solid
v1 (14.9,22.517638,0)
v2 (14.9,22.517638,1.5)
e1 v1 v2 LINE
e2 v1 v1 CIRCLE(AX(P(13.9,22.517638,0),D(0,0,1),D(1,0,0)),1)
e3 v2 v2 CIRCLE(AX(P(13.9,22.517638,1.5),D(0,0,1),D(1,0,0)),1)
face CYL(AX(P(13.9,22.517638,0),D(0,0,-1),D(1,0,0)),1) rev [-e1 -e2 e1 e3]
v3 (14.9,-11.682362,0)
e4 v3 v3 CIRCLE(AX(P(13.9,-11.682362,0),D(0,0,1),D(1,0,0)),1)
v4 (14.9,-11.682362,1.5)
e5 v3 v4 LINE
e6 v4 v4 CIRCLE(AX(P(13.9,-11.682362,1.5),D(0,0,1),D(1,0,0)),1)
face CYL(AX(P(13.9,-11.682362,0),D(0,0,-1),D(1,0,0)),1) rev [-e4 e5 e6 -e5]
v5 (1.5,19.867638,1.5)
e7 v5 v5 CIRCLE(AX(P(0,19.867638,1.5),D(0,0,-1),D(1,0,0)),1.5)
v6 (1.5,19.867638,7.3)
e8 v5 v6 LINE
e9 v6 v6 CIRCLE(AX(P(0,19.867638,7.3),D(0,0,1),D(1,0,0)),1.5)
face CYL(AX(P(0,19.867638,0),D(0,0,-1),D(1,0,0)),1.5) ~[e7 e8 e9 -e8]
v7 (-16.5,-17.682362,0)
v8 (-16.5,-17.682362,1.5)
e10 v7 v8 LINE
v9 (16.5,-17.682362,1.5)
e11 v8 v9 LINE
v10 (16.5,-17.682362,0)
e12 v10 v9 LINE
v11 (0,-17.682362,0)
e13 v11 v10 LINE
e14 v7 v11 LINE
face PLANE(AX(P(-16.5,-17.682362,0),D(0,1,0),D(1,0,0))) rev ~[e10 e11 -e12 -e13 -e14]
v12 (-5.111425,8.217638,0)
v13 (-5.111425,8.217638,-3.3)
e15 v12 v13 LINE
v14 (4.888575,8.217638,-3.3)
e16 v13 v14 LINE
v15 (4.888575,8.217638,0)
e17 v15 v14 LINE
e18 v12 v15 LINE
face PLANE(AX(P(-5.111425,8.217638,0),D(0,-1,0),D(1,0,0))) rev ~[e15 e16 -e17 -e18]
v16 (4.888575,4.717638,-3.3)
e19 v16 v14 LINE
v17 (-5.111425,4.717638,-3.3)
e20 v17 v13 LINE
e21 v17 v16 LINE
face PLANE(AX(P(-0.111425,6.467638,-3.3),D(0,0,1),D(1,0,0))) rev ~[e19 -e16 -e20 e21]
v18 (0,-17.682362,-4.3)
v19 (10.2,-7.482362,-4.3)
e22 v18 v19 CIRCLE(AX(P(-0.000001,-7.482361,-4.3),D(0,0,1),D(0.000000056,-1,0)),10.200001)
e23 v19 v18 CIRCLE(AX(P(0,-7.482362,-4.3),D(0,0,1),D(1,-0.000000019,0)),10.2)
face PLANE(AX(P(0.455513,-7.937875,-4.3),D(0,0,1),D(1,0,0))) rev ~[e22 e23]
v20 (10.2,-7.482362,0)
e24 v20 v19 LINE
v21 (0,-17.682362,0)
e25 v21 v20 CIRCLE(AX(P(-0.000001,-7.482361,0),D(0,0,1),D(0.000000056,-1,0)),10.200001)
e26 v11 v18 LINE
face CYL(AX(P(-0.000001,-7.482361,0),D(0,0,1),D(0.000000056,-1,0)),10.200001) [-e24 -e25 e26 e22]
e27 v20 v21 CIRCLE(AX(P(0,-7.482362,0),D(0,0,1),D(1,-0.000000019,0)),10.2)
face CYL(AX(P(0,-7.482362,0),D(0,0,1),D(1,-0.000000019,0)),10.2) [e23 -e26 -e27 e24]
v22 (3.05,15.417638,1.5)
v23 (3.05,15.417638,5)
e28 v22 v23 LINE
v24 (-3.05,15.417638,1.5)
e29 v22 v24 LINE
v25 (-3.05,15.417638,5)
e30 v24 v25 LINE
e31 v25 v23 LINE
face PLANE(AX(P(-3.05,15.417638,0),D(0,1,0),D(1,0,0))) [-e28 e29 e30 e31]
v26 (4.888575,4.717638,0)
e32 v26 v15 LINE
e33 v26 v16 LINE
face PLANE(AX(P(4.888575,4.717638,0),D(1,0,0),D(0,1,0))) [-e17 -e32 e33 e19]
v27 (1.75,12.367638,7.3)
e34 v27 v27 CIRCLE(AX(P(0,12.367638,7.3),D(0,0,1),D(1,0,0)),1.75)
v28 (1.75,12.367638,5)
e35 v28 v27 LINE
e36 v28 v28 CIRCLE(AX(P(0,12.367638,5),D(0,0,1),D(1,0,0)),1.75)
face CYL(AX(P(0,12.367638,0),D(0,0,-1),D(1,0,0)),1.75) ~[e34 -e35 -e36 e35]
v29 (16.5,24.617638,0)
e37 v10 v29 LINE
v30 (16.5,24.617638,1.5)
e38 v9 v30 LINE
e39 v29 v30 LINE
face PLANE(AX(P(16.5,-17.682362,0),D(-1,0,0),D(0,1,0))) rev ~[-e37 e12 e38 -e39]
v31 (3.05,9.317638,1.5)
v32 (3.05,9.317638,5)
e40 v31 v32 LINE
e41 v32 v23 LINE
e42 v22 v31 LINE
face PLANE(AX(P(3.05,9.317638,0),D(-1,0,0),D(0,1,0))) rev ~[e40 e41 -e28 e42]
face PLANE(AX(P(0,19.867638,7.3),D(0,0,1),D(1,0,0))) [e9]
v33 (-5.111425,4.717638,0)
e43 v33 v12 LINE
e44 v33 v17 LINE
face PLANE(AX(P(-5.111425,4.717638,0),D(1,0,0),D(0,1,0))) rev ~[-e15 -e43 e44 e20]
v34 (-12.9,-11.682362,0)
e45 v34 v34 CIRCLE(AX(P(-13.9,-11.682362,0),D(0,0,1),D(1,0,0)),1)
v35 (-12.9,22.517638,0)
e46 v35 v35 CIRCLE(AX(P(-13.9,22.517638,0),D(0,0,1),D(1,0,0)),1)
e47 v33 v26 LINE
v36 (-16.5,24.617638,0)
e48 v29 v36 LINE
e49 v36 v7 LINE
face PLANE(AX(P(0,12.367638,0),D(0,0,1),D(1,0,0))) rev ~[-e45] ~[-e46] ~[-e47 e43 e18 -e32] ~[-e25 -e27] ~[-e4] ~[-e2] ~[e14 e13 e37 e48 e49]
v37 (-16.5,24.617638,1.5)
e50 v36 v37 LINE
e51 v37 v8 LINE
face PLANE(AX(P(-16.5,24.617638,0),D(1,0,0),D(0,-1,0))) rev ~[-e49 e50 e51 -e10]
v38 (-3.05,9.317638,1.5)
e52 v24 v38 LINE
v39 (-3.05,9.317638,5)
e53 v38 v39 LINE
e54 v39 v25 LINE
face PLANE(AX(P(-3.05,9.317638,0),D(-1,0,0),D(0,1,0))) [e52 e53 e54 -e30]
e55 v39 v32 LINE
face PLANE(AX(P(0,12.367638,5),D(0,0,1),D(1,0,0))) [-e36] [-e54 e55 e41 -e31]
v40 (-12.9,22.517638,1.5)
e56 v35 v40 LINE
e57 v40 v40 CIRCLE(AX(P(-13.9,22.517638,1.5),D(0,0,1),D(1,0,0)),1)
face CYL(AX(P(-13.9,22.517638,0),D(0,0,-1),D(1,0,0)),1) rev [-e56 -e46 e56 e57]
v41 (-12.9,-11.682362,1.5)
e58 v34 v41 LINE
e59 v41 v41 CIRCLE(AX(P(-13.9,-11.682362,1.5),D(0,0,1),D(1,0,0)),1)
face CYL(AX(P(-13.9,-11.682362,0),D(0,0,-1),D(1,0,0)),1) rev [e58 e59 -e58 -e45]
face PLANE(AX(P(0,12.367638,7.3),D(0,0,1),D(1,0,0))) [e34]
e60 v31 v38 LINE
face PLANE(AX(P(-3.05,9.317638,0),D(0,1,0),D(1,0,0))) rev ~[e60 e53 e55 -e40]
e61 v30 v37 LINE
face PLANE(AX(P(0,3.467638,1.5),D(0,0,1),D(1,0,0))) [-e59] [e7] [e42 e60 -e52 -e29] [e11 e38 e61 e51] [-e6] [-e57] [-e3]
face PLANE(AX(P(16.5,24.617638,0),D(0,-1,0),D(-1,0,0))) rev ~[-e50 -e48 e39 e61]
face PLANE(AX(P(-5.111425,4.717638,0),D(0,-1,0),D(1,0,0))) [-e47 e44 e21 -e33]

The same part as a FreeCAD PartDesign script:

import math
import FreeCAD as App
import Part
import Sketcher
from FreeCAD import Vector
Q = App.Units.Quantity


def add_polygon(sketch, points):
    """Adds a closed chain of lines whose ends are joined by coincident constraints."""
    first, n = sketch.GeometryCount, len(points)
    for a, b in zip(points, points[1:] + points[:1]):
        sketch.addGeometry(Part.LineSegment(App.Vector(*a, 0), App.Vector(*b, 0)), False)
    for i in range(n):
        sketch.addConstraint(Sketcher.Constraint("Coincident", first + i, 2, first + (i + 1) % n, 1))

doc = App.newDocument("Part")
body = doc.addObject("PartDesign::Body", "Body")

# Sketch on XY plane
sketch1 = doc.addObject("Sketcher::SketchObject", "Sketch")
body.addObject(sketch1)
sketch1.AttachmentSupport = (doc.XY_Plane, [""])
sketch1.MapMode = "FlatFace"
add_polygon(sketch1, [(-16.5, -17.7), (16.5, -17.7), (16.5, 24.6), (-16.5, 24.6)])  # lines 0-3
sketch1.addGeometry(Part.Circle(Vector(-13.9, -11.7, 0), Vector(0, 0, 1), 1), False)  # 4
sketch1.addGeometry(Part.Circle(Vector(13.9, -11.7, 0), Vector(0, 0, 1), 1), False)  # 5
sketch1.addGeometry(Part.Circle(Vector(-13.9, 22.5, 0), Vector(0, 0, 1), 1), False)  # 6
sketch1.addGeometry(Part.Circle(Vector(13.9, 22.5, 0), Vector(0, 0, 1), 1), False)  # 7
sketch1.addConstraint([
    Sketcher.Constraint("Horizontal", 0),
    Sketcher.Constraint("Vertical", 1),
    Sketcher.Constraint("Horizontal", 2),
    Sketcher.Constraint("Vertical", 3),
    Sketcher.Constraint("Equal", 4, 5),
    Sketcher.Constraint("Equal", 5, 6),
    Sketcher.Constraint("Equal", 6, 7),
    Sketcher.Constraint("Symmetric", 4, 3, 5, 3, -2),
    Sketcher.Constraint("Symmetric", 6, 3, 7, 3, -2),
    Sketcher.Constraint("Vertical", 4, 3, 6, 3),
    Sketcher.Constraint("Diameter", 4, Q("2 mm")),
    Sketcher.Constraint("DistanceX", 0, 1, 0, 2, Q("33 mm")),
    Sketcher.Constraint("DistanceY", 1, 1, 1, 2, Q("42.3 mm")),
    Sketcher.Constraint("DistanceY", 0, 2, 5, 3, Q("6 mm")),
    Sketcher.Constraint("DistanceX", 4, 3, -1, 1, Q("13.9 mm")),
    Sketcher.Constraint("DistanceX", -1, 1, 0, 2, Q("16.5 mm")),
    Sketcher.Constraint("DistanceY", 4, 3, 6, 3, Q("34.2 mm")),
    Sketcher.Constraint("DistanceY", -1, 1, 6, 3, Q("22.517638 mm")),
])
pad1 = doc.addObject("PartDesign::Pad", "Pad")
body.addObject(pad1)
pad1.Profile = sketch1
pad1.Length = 1.5

# Sketch on XY plane
sketch2 = doc.addObject("Sketcher::SketchObject", "Sketch001")
body.addObject(sketch2)
sketch2.AttachmentSupport = (doc.XY_Plane, [""])
sketch2.MapMode = "FlatFace"
sketch2.addGeometry([
    Part.ArcOfCircle(Part.Circle(Vector(0, -7, 0), Vector(0, 0, 1), 10), math.radians(0), math.radians(270)),
    Part.ArcOfCircle(Part.Circle(Vector(0, -7, 0), Vector(0, 0, 1), 10), math.radians(-90), math.radians(0)),
], False)
sketch2.addConstraint([
    Sketcher.Constraint("Tangent", 0, 1, 1, 2),
    Sketcher.Constraint("Coincident", 1, 1, 0, 2),
    Sketcher.Constraint("PointOnObject", 0, 3, -2),
    Sketcher.Constraint("PointOnObject", 1, 1, -2),
    Sketcher.Constraint("Horizontal", 1, 3, 0, 1),
    Sketcher.Constraint("Radius", 0, Q("10.2 mm")),
    Sketcher.Constraint("DistanceY", 0, 3, -1, 1, Q("7.482362 mm")),
])
pad2 = doc.addObject("PartDesign::Pad", "Pad001")
body.addObject(pad2)
pad2.Profile = sketch2
pad2.Length = 4.3
pad2.Reversed = True

# Sketch on XY plane
sketch3 = doc.addObject("Sketcher::SketchObject", "Sketch002")
body.addObject(sketch3)
sketch3.AttachmentSupport = (doc.XY_Plane, [""])
sketch3.MapMode = "FlatFace"
sketch3.addGeometry([
    Part.Circle(Vector(0, 19.9, 0), Vector(0, 0, 1), 1.5),
    Part.Circle(Vector(0, 12.4, 0), Vector(0, 0, 1), 1.8),
], False)
sketch3.addConstraint([
    Sketcher.Constraint("PointOnObject", 0, 3, -2),
    Sketcher.Constraint("PointOnObject", 1, 3, -2),
    Sketcher.Constraint("Diameter", 0, Q("3 mm")),
    Sketcher.Constraint("Diameter", 1, Q("3.5 mm")),
    Sketcher.Constraint("DistanceY", 1, 3, 0, 3, Q("7.5 mm")),
    Sketcher.Constraint("DistanceY", -1, 1, 0, 3, Q("19.867638 mm")),
])
pad3 = doc.addObject("PartDesign::Pad", "Pad002")
body.addObject(pad3)
pad3.Profile = sketch3
pad3.Length = 7.3

# Sketch on XY plane
sketch4 = doc.addObject("Sketcher::SketchObject", "Sketch003")
body.addObject(sketch4)
sketch4.AttachmentSupport = (doc.XY_Plane, [""])
sketch4.MapMode = "FlatFace"
add_polygon(sketch4, [(-3, 15.4), (-3, 9.3), (3, 9.3), (3, 15.4)])  # lines 0-3
sketch4.addGeometry(Part.Circle(Vector(0, 12.4, 0), Vector(0, 0, 1), 1.8), False)  # 4
sketch4.addConstraint([
    Sketcher.Constraint("Vertical", 0),
    Sketcher.Constraint("Horizontal", 1),
    Sketcher.Constraint("Vertical", 2),
    Sketcher.Constraint("Horizontal", 3),
    Sketcher.Constraint("PointOnObject", 4, 3, -2),
    Sketcher.Constraint("Equal", 3, 0),
    Sketcher.Constraint("Diameter", 4, Q("3.5 mm")),
    Sketcher.Constraint("DistanceX", 1, 1, 1, 2, Q("6.1 mm")),
    Sketcher.Constraint("DistanceX", 0, 2, -1, 1, Q("3.05 mm")),
    Sketcher.Constraint("DistanceY", 0, 2, 4, 3, Q("3.05 mm")),
    Sketcher.Constraint("DistanceY", -1, 1, 4, 3, Q("12.367638 mm")),
])
pad4 = doc.addObject("PartDesign::Pad", "Pad003")
body.addObject(pad4)
pad4.Profile = sketch4
pad4.Length = 5

# Sketch on XY plane
sketch5 = doc.addObject("Sketcher::SketchObject", "Sketch004")
body.addObject(sketch5)
sketch5.AttachmentSupport = (doc.XY_Plane, [""])
sketch5.MapMode = "FlatFace"
add_polygon(sketch5, [(-5.1, 8.2), (-5.1, 4.7), (4.9, 4.7), (4.9, 8.2)])  # lines 0-3
sketch5.addConstraint([
    Sketcher.Constraint("Vertical", 0),
    Sketcher.Constraint("Horizontal", 1),
    Sketcher.Constraint("Vertical", 2),
    Sketcher.Constraint("Horizontal", 3),
    Sketcher.Constraint("DistanceX", 1, 1, 1, 2, Q("10 mm")),
    Sketcher.Constraint("DistanceY", 0, 2, 0, 1, Q("3.5 mm")),
    Sketcher.Constraint("DistanceY", -1, 1, 2, 2, Q("8.217638 mm")),
    Sketcher.Constraint("DistanceX", 0, 2, -1, 1, Q("5.111425 mm")),
])
pad5 = doc.addObject("PartDesign::Pad", "Pad004")
body.addObject(pad5)
pad5.Profile = sketch5
pad5.Length = 3.3
pad5.Reversed = True

doc.recompute()
